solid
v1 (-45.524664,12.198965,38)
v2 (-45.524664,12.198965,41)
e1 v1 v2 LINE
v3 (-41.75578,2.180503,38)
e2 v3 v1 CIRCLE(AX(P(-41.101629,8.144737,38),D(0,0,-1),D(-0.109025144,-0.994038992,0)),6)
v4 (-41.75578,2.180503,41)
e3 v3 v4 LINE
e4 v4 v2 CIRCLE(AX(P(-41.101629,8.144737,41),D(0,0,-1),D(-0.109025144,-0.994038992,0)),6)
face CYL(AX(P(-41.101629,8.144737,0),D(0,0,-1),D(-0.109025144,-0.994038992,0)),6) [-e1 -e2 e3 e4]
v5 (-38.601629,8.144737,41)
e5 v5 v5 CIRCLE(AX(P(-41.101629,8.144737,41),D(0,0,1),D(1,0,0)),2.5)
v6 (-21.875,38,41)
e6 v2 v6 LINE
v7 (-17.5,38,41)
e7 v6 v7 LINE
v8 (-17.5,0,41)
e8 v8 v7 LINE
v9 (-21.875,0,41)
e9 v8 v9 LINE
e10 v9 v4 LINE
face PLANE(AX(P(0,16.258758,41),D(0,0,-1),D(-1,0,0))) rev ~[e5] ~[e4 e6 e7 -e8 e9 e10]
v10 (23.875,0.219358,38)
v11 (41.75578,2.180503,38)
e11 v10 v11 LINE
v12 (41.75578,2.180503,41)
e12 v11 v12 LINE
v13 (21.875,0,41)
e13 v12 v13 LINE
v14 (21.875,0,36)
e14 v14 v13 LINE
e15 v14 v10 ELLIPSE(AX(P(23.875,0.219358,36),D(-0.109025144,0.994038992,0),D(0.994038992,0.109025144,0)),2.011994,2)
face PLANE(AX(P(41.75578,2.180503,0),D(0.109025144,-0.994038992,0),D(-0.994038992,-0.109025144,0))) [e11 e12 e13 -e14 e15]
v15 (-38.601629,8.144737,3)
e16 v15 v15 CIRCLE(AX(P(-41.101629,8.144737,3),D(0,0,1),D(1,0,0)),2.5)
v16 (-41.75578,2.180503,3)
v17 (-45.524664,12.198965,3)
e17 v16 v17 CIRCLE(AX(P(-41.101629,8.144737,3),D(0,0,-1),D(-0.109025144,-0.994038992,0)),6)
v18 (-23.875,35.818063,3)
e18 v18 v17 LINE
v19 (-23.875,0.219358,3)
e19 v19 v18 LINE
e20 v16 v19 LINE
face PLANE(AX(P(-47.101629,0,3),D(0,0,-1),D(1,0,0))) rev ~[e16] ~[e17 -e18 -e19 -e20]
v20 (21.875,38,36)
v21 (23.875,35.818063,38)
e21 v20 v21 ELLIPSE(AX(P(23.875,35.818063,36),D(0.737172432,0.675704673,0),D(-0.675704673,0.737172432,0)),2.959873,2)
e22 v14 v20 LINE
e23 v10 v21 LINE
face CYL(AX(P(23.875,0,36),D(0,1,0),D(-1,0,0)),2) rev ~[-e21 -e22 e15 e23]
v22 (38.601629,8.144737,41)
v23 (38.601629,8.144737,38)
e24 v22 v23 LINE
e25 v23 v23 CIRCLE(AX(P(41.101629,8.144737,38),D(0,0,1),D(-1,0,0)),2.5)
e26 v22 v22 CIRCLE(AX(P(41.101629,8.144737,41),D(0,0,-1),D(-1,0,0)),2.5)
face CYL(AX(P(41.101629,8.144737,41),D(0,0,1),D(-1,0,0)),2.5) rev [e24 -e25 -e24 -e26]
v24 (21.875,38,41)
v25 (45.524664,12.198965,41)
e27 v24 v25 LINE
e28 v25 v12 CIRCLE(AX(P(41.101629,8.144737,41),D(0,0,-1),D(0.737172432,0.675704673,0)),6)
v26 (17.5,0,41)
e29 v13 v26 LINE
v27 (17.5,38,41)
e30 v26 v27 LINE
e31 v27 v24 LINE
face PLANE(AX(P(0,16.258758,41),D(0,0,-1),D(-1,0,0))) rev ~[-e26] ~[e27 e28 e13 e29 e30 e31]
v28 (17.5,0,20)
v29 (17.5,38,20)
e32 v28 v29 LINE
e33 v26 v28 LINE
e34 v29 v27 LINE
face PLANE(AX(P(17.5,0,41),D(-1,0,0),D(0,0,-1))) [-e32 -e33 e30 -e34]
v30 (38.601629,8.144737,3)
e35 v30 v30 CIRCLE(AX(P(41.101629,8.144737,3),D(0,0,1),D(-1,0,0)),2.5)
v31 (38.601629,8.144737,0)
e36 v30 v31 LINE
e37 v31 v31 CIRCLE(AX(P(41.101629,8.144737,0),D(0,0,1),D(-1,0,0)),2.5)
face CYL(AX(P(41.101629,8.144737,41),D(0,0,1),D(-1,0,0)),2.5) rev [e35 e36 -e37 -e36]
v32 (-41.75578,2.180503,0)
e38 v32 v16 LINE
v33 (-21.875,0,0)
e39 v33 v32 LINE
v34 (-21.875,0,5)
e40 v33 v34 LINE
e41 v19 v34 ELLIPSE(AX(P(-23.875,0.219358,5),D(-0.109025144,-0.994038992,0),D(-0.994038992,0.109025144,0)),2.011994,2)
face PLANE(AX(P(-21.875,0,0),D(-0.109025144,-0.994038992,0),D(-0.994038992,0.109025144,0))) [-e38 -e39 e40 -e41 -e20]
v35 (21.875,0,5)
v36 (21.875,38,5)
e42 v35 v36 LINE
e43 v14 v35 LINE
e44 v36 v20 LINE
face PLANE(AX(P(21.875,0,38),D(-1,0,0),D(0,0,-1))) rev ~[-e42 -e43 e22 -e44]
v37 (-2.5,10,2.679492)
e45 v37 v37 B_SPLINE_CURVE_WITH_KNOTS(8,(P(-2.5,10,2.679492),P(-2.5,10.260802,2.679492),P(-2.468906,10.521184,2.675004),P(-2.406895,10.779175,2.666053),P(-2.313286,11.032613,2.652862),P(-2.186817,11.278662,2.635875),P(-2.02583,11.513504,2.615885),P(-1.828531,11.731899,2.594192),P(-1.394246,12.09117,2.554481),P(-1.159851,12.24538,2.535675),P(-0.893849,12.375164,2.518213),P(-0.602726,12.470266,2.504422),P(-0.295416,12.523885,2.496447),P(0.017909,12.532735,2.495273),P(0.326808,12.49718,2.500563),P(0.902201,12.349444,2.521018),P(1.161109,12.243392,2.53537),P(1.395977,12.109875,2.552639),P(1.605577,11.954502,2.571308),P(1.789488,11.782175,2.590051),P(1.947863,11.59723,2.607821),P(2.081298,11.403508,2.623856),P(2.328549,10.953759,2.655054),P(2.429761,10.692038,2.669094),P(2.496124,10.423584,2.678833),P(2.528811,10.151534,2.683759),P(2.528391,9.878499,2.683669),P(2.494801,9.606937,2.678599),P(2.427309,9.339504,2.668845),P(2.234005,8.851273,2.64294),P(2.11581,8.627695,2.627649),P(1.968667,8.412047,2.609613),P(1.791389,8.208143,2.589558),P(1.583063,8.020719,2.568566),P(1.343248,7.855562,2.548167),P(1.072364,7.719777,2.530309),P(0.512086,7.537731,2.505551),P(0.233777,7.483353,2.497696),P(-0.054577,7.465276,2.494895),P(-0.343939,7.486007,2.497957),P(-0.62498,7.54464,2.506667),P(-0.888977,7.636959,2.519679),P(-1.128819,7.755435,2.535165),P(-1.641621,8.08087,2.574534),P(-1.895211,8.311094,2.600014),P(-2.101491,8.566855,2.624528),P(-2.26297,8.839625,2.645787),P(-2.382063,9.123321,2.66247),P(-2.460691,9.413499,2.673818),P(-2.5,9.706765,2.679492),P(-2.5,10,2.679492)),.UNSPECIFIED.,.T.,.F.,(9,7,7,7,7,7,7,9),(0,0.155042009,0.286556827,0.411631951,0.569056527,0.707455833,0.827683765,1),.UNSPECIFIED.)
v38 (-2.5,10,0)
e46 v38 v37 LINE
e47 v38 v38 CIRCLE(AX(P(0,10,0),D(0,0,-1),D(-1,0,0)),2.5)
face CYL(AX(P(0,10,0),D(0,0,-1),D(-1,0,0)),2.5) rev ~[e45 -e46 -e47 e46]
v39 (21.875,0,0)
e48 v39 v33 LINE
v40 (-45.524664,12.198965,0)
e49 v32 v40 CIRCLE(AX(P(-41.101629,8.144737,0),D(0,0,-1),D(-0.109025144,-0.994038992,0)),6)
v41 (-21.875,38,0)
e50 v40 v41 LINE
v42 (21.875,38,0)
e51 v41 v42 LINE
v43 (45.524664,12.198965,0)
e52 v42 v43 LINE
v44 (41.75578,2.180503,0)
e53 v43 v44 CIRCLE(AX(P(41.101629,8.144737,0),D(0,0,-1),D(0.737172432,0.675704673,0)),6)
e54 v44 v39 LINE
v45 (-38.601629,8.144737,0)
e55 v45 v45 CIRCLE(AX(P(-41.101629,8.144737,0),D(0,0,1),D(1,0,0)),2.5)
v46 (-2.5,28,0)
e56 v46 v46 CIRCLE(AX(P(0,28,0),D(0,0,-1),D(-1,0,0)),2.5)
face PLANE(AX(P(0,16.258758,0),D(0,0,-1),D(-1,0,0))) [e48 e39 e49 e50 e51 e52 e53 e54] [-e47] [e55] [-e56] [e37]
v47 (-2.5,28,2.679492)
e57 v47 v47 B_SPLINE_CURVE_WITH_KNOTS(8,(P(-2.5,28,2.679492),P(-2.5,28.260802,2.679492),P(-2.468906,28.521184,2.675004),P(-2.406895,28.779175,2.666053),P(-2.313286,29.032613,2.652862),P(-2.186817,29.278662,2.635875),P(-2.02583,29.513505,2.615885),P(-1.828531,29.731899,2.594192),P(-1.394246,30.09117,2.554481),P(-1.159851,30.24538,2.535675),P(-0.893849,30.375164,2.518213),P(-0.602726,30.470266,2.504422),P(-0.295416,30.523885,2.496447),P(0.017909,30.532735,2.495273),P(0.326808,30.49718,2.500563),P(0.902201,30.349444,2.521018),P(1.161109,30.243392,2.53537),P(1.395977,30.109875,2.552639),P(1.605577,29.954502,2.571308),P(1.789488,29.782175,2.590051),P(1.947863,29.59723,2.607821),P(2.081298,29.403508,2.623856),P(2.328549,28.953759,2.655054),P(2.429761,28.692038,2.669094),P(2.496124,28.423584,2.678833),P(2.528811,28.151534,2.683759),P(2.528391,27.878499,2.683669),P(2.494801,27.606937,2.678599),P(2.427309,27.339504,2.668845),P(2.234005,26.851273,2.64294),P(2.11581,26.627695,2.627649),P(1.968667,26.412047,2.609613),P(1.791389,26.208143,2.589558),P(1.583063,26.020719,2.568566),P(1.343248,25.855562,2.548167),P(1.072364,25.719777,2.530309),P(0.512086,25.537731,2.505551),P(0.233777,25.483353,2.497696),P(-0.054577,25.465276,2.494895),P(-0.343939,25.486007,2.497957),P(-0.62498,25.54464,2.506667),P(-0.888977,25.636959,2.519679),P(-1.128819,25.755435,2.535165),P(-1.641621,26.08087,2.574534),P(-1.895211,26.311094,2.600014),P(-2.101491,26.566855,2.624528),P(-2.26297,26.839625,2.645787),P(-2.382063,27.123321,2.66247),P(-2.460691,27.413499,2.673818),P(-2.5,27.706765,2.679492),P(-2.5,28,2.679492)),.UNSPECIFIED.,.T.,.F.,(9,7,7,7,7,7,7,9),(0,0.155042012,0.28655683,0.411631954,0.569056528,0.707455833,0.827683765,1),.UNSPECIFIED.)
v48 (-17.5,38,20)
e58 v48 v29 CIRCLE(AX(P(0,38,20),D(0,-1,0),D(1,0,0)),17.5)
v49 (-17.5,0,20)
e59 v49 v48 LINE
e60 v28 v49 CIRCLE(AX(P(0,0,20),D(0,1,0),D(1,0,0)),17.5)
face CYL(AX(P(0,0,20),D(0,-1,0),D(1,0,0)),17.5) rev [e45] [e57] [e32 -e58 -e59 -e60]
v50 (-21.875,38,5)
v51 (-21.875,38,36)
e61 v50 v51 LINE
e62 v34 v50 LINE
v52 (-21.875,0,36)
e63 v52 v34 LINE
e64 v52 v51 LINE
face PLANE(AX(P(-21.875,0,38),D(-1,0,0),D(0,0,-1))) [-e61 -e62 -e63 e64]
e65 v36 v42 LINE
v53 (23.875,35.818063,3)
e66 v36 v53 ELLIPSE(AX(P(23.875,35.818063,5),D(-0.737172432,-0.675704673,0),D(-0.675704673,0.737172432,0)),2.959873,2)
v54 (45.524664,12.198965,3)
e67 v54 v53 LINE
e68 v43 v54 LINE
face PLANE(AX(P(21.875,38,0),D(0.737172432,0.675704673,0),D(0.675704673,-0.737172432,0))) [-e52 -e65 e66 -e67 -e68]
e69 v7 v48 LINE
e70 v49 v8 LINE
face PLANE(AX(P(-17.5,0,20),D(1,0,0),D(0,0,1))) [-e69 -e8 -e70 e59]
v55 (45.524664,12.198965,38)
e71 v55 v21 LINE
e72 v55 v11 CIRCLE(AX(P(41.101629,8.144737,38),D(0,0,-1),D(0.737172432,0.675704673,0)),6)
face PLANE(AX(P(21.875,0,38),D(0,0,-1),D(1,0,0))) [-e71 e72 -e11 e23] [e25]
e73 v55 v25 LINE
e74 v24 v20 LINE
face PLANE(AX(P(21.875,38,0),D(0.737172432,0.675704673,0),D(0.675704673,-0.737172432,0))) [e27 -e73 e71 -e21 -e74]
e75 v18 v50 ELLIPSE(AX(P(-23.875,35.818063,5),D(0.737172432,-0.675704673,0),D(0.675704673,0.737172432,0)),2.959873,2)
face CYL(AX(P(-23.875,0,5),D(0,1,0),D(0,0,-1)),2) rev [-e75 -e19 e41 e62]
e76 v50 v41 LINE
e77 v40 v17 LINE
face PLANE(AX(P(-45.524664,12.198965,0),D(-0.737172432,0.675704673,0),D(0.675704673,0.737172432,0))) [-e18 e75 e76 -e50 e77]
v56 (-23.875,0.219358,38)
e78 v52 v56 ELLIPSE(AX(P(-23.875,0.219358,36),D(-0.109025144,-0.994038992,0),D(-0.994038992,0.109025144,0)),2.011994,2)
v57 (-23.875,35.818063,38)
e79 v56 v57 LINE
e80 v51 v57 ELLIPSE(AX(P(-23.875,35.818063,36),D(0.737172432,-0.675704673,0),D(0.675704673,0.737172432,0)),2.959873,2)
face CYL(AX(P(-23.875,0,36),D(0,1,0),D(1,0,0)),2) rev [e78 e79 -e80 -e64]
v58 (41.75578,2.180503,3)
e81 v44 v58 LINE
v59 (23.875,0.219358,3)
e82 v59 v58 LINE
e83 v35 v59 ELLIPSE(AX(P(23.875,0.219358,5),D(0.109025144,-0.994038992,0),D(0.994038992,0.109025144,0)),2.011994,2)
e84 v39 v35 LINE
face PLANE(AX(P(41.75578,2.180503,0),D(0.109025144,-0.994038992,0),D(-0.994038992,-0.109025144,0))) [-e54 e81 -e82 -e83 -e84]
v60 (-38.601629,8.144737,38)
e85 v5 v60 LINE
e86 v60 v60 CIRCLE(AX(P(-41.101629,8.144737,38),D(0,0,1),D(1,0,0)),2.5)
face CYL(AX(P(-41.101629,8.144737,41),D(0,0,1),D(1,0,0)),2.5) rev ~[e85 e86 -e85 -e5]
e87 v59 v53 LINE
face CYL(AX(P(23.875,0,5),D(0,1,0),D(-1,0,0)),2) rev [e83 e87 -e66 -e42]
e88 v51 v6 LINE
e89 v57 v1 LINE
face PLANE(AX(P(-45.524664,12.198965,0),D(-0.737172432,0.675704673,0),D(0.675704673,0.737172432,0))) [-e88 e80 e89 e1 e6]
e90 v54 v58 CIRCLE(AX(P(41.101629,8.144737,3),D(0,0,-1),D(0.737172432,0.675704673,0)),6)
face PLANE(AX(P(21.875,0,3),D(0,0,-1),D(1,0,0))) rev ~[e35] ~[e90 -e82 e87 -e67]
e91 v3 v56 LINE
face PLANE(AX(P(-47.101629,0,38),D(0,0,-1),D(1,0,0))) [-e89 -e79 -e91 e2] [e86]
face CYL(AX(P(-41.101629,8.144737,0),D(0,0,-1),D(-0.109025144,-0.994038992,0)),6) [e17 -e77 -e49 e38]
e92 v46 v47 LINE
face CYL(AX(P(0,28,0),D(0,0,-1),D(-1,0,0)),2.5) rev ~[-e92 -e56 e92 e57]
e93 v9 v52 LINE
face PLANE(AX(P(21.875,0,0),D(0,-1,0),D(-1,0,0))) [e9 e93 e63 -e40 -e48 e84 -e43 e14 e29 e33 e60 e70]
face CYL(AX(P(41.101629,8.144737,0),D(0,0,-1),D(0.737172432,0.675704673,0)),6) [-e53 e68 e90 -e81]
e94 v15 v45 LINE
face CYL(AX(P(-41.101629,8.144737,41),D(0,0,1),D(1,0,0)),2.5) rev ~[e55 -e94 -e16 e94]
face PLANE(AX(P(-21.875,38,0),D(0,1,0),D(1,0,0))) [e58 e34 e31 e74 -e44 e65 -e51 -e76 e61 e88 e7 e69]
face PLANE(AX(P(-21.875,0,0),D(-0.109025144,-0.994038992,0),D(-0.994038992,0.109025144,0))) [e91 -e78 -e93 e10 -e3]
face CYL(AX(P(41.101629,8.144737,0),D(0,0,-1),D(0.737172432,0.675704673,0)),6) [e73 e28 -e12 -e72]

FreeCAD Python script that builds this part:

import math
import FreeCAD as App
import Part
import Sketcher

V = App.Vector


def edges_at(feature, points):
    """Names of the edges that pass closest to the given points."""
    edges = feature.Shape.Edges
    near = lambda p: min(range(len(edges)), key=lambda i: edges[i].distToShape(Part.Vertex(*p))[0])
    return sorted({f"Edge{near(p) + 1}" for p in points})


def add_polygon(sketch, points):
    """Adds a closed chain of lines whose ends are joined by coincident constraints."""
    first, n = sketch.GeometryCount, len(points)
    for a, b in zip(points, points[1:] + points[:1]):
        sketch.addGeometry(Part.LineSegment(App.Vector(*a, 0), App.Vector(*b, 0)), False)
    for i in range(n):
        sketch.addConstraint(Sketcher.Constraint("Coincident", first + i, 2, first + (i + 1) % n, 1))

doc = App.newDocument("Part")
body = doc.addObject("PartDesign::Body", "Body")

# Sketch on XY plane
sketch1 = body.newObject("Sketcher::SketchObject", "Sketch")
sketch1.AttachmentSupport = (doc.getObject("XY_Plane"), [""])
sketch1.MapMode = "FlatFace"
sketch1.addGeometry(Part.LineSegment(V(-42, 2, 0), V(-22, 0, 0)), False)
sketch1.addGeometry(Part.LineSegment(V(-22, 0, 0), V(22, 0, 0)), False)
sketch1.addGeometry(Part.LineSegment(V(22, 0, 0), V(42, 2, 0)), False)
sketch1.addGeometry(Part.ArcOfCircle(Part.Circle(V(41, 8, 0), V(0, 0, 1), 6), math.radians(-84), math.radians(43)), False)
sketch1.addGeometry(Part.LineSegment(V(46, 12, 0), V(22, 38, 0)), False)
sketch1.addGeometry(Part.LineSegment(V(22, 38, 0), V(-22, 38, 0)), False)
sketch1.addGeometry(Part.LineSegment(V(-22, 38, 0), V(-46, 12, 0)), False)
sketch1.addGeometry(Part.ArcOfCircle(Part.Circle(V(-41, 8, 0), V(0, 0, 1), 6), math.radians(137), math.radians(264)), False)
sketch1.addConstraint(Sketcher.Constraint("Coincident", 0, 2, 1, 1))
sketch1.addConstraint(Sketcher.Constraint("Coincident", 1, 2, 2, 1))
sketch1.addConstraint(Sketcher.Constraint("Tangent", 2, 2, 3, 1))
sketch1.addConstraint(Sketcher.Constraint("Tangent", 3, 2, 4, 1))
sketch1.addConstraint(Sketcher.Constraint("Coincident", 4, 2, 5, 1))
sketch1.addConstraint(Sketcher.Constraint("Coincident", 5, 2, 6, 1))
sketch1.addConstraint(Sketcher.Constraint("Tangent", 6, 2, 7, 1))
sketch1.addConstraint(Sketcher.Constraint("Tangent", 7, 2, 0, 1))
sketch1.addConstraint(Sketcher.Constraint("Horizontal", 1))
sketch1.addConstraint(Sketcher.Constraint("Horizontal", 5))
sketch1.addConstraint(Sketcher.Constraint("Equal", 3, 7))
sketch1.addConstraint(Sketcher.Constraint("Symmetric", 0, 2, 1, 2, -1, 1))
sketch1.addConstraint(Sketcher.Constraint("Symmetric", 3, 3, 7, 3, -2))
sketch1.addConstraint(Sketcher.Constraint("Horizontal", 3, 2, 6, 2))
sketch1.addConstraint(Sketcher.Constraint("Vertical", 1, 2, 4, 2))
sketch1.addConstraint(Sketcher.Constraint("Radius", 3, 6.0))
sketch1.addConstraint(Sketcher.Constraint("Distance", 0, 20.0))
sketch1.addConstraint(Sketcher.Constraint("Distance", 4, 35.0))
sketch1.addConstraint(Sketcher.Constraint("DistanceY", -1, 1, 4, 2, 38.0))
sketch1.addConstraint(Sketcher.Constraint("DistanceX", 1, 1, 1, 2, 43.75))
pad1 = body.newObject("PartDesign::Pad", "Pad")
pad1.Profile = sketch1
pad1.Length = 41

# Sketch on XZ plane
sketch2 = body.newObject("Sketcher::SketchObject", "Sketch001")
sketch2.AttachmentSupport = (doc.getObject("XZ_Plane"), [""])
sketch2.MapMode = "FlatFace"
add_polygon(sketch2, [(22, 3), (22, 38), (47, 38), (47, 3)])  # lines 0-3
add_polygon(sketch2, [(-47, 3), (-47, 38), (-22, 38), (-22, 3)])  # lines 4-7
sketch2.addConstraint(Sketcher.Constraint("Vertical", 0))
sketch2.addConstraint(Sketcher.Constraint("Horizontal", 1))
sketch2.addConstraint(Sketcher.Constraint("Vertical", 2))
sketch2.addConstraint(Sketcher.Constraint("Horizontal", 3))
sketch2.addConstraint(Sketcher.Constraint("Vertical", 4))
sketch2.addConstraint(Sketcher.Constraint("Horizontal", 5))
sketch2.addConstraint(Sketcher.Constraint("Vertical", 6))
sketch2.addConstraint(Sketcher.Constraint("Horizontal", 7))
sketch2.addConstraint(Sketcher.Constraint("Symmetric", 1, 2, 4, 2, -2))
sketch2.addConstraint(Sketcher.Constraint("Symmetric", 3, 2, 6, 2, -2))
sketch2.addConstraint(Sketcher.Constraint("DistanceY", 0, 1, 0, 2, 35.0))
sketch2.addConstraint(Sketcher.Constraint("DistanceY", -1, 1, 0, 2, 38.0))
sketch2.addConstraint(Sketcher.Constraint("DistanceX", 5, 2, 0, 2, 43.75))
sketch2.addConstraint(Sketcher.Constraint("DistanceX", 1, 1, 1, 2, 25.226629))
pocket1 = body.newObject("PartDesign::Pocket", "Pocket")
pocket1.Profile = sketch2
pocket1.Type = "ThroughAll"
pocket1.Midplane = True

# Sketch on XZ plane
sketch3 = body.newObject("Sketcher::SketchObject", "Sketch002")
sketch3.AttachmentSupport = (doc.getObject("XZ_Plane"), [""])
sketch3.MapMode = "FlatFace"
sketch3.addGeometry(Part.LineSegment(V(-18, 41, 0), V(-18, 20, 0)), False)
sketch3.addGeometry(Part.ArcOfCircle(Part.Circle(V(0, 20, 0), V(0, 0, 1), 18), math.radians(180), math.radians(360)), False)
sketch3.addGeometry(Part.LineSegment(V(18, 20, 0), V(18, 41, 0)), False)
sketch3.addGeometry(Part.LineSegment(V(18, 41, 0), V(-18, 41, 0)), False)
sketch3.addConstraint(Sketcher.Constraint("Tangent", 0, 2, 1, 1))
sketch3.addConstraint(Sketcher.Constraint("Tangent", 1, 2, 2, 1))
sketch3.addConstraint(Sketcher.Constraint("Coincident", 2, 2, 3, 1))
sketch3.addConstraint(Sketcher.Constraint("Coincident", 3, 2, 0, 1))
sketch3.addConstraint(Sketcher.Constraint("Vertical", 0))
sketch3.addConstraint(Sketcher.Constraint("Vertical", 2))
sketch3.addConstraint(Sketcher.Constraint("Horizontal", 3))
sketch3.addConstraint(Sketcher.Constraint("PointOnObject", 1, 3, -2))
sketch3.addConstraint(Sketcher.Constraint("Radius", 1, 17.5))
sketch3.addConstraint(Sketcher.Constraint("DistanceY", 0, 2, 0, 1, 21.0))
sketch3.addConstraint(Sketcher.Constraint("DistanceY", -1, 1, 1, 3, 20.0))
pocket2 = body.newObject("PartDesign::Pocket", "Pocket001")
pocket2.Profile = sketch3
pocket2.Type = "ThroughAll"

# Sketch on XY plane
sketch4 = body.newObject("Sketcher::SketchObject", "Sketch003")
sketch4.AttachmentSupport = (doc.getObject("XY_Plane"), [""])
sketch4.MapMode = "FlatFace"
sketch4.addGeometry(Part.Circle(V(0, 28, 0), V(0, 0, 1), 2.5), False)
sketch4.addGeometry(Part.Circle(V(0, 10, 0), V(0, 0, 1), 2.5), False)
sketch4.addConstraint(Sketcher.Constraint("Equal", 0, 1))
sketch4.addConstraint(Sketcher.Constraint("PointOnObject", 0, 3, -2))
sketch4.addConstraint(Sketcher.Constraint("PointOnObject", 1, 3, -2))
sketch4.addConstraint(Sketcher.Constraint("Diameter", 0, 5.0))
sketch4.addConstraint(Sketcher.Constraint("DistanceY", -1, 1, 0, 3, 28.0))
sketch4.addConstraint(Sketcher.Constraint("DistanceY", -1, 1, 1, 3, 10.0))
pocket3 = body.newObject("PartDesign::Pocket", "Pocket002")
pocket3.Profile = sketch4
pocket3.Type = "ThroughAll"
pocket3.Reversed = True

# Sketch on XY plane
sketch5 = body.newObject("Sketcher::SketchObject", "Sketch004")
sketch5.AttachmentSupport = (doc.getObject("XY_Plane"), [""])
sketch5.MapMode = "FlatFace"
sketch5.AttachmentOffset = App.Placement(V(0, 0, 41), App.Rotation())
sketch5.addGeometry(Part.Circle(V(-41.1, 8.1, 0), V(0, 0, 1), 2.5), False)
sketch5.addConstraint(Sketcher.Constraint("Diameter", 0, 5.0))
sketch5.addConstraint(Sketcher.Constraint("DistanceX", 0, 3, -1, 1, 41.101629))
sketch5.addConstraint(Sketcher.Constraint("DistanceY", -1, 1, 0, 3, 8.144737))
pocket4 = body.newObject("PartDesign::Pocket", "Pocket003")
pocket4.Profile = sketch5
pocket4.Type = "ThroughAll"
doc.recompute()

mirrored = body.newObject("PartDesign::Mirrored", "Mirrored")
mirrored.Originals = [pocket4]
mirrored.MirrorPlane = (doc.getObject("YZ_Plane"), [""])
body.Tip = mirrored
doc.recompute()

fillet = body.newObject("PartDesign::Fillet", "Fillet")
fillet.Base = (mirrored, edges_at(mirrored, [
    (21.875, 19, 3),
    (21.875, 19, 38),
    (-21.875, 19, 38),
    (-21.875, 19, 3),
]))
fillet.Radius = 2

doc.recompute()
